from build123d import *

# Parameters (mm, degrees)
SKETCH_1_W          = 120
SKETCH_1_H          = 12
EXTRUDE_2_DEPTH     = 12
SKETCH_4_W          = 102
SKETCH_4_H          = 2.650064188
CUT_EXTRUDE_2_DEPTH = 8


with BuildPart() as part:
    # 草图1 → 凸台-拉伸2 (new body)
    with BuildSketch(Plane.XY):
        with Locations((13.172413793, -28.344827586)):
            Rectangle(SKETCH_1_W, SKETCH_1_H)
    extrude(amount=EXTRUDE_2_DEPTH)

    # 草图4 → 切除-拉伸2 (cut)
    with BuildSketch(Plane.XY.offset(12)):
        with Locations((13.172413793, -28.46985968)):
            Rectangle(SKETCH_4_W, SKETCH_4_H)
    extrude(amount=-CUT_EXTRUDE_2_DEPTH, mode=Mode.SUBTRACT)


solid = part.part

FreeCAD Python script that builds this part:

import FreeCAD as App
import Part
import Sketcher
Q = App.Units.Quantity


def add_polygon(sketch, points):
    """Adds a closed chain of lines whose ends are joined by coincident constraints."""
    first, n = sketch.GeometryCount, len(points)
    for a, b in zip(points, points[1:] + points[:1]):
        sketch.addGeometry(Part.LineSegment(App.Vector(*a, 0), App.Vector(*b, 0)), False)
    for i in range(n):
        sketch.addConstraint(Sketcher.Constraint("Coincident", first + i, 2, first + (i + 1) % n, 1))

doc = App.newDocument("Part")
body = doc.addObject("PartDesign::Body", "Body")

sketch1 = body.newObject("Sketcher::SketchObject", "Sketch")
sketch1.AttachmentSupport = (doc.getObject("XY_Plane"), [""])
sketch1.MapMode = "FlatFace"
add_polygon(sketch1, [(-46.827586, -22.344828), (-46.827586, -34.344828), (73.172414, -34.344828), (73.172414, -22.344828)])
sketch1.addConstraint([
    Sketcher.Constraint("Vertical", 0),
    Sketcher.Constraint("Horizontal", 1),
    Sketcher.Constraint("Vertical", 2),
    Sketcher.Constraint("Horizontal", 3),
    Sketcher.Constraint("DistanceX", 1, 1, 1, 2, Q("120 mm")),
    Sketcher.Constraint("DistanceY", 0, 2, 0, 1, Q("12 mm")),
    Sketcher.Constraint("DistanceX", 0, 2, -1, 1, Q("46.827586 mm")),
    Sketcher.Constraint("DistanceY", 0, 2, -1, 1, Q("34.344828 mm")),
])
pad1 = body.newObject("PartDesign::Pad", "Pad")
pad1.Profile = sketch1
pad1.Length = 12

sketch2 = body.newObject("Sketcher::SketchObject", "Sketch001")
sketch2.AttachmentSupport = (doc.getObject("XY_Plane"), [""])
sketch2.MapMode = "FlatFace"
sketch2.AttachmentOffset = App.Placement(App.Vector(0, 0, 12), App.Rotation())
add_polygon(sketch2, [(-37.827586, -27.144828), (-37.827586, -29.794892), (64.172414, -29.794892), (64.172414, -27.144828)])
sketch2.addConstraint([
    Sketcher.Constraint("Vertical", 0),
    Sketcher.Constraint("Horizontal", 1),
    Sketcher.Constraint("Vertical", 2),
    Sketcher.Constraint("Horizontal", 3),
    Sketcher.Constraint("DistanceX", 1, 1, 1, 2, Q("102 mm")),
    Sketcher.Constraint("DistanceY", 0, 2, 0, 1, Q("2.650064 mm")),
    Sketcher.Constraint("DistanceY", 0, 2, -1, 1, Q("29.794892 mm")),
    Sketcher.Constraint("DistanceX", 0, 2, -1, 1, Q("37.827586 mm")),
])
pocket1 = body.newObject("PartDesign::Pocket", "Pocket")
pocket1.Profile = sketch2
pocket1.Length = 8

doc.recompute()
